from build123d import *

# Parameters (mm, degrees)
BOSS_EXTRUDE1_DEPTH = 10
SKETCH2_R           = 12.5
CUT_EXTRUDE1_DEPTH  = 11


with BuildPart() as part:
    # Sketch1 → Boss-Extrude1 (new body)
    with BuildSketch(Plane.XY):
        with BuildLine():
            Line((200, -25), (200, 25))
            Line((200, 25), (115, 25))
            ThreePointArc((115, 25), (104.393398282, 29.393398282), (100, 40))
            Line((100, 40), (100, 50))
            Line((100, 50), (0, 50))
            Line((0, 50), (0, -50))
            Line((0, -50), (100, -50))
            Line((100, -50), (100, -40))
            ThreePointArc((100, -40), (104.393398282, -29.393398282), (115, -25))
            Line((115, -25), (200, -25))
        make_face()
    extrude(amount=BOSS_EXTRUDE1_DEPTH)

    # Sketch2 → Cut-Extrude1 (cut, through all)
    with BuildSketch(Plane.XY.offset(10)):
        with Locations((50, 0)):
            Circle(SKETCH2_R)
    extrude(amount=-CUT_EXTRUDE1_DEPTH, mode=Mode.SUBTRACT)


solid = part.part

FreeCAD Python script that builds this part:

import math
import FreeCAD as App
import Part
import Sketcher
from FreeCAD import Vector
Q = App.Units.Quantity

doc = App.newDocument("Part")
body = doc.addObject("PartDesign::Body", "Body")

sketch1 = body.newObject("Sketcher::SketchObject", "Sketch")
sketch1.AttachmentSupport = (doc.getObject("XY_Plane"), [""])
sketch1.MapMode = "FlatFace"
sketch1.addGeometry([
    Part.LineSegment(Vector(200, -25, 0), Vector(200, 25, 0)),
    Part.LineSegment(Vector(200, 25, 0), Vector(115, 25, 0)),
    Part.ArcOfCircle(Part.Circle(Vector(115, 40, 0), Vector(0, 0, 1), 15), math.radians(180), math.radians(270)),
    Part.LineSegment(Vector(100, 40, 0), Vector(100, 50, 0)),
    Part.LineSegment(Vector(100, 50, 0), Vector(0, 50, 0)),
    Part.LineSegment(Vector(0, 50, 0), Vector(0, -50, 0)),
    Part.LineSegment(Vector(0, -50, 0), Vector(100, -50, 0)),
    Part.LineSegment(Vector(100, -50, 0), Vector(100, -40, 0)),
    Part.ArcOfCircle(Part.Circle(Vector(115, -40, 0), Vector(0, 0, 1), 15), math.radians(90), math.radians(180)),
    Part.LineSegment(Vector(115, -25, 0), Vector(200, -25, 0)),
], False)
sketch1.addConstraint([
    Sketcher.Constraint("Coincident", 0, 2, 1, 1),
    Sketcher.Constraint("Tangent", 1, 2, 2, 2),
    Sketcher.Constraint("Tangent", 2, 1, 3, 1),
    Sketcher.Constraint("Coincident", 3, 2, 4, 1),
    Sketcher.Constraint("Coincident", 4, 2, 5, 1),
    Sketcher.Constraint("Coincident", 5, 2, 6, 1),
    Sketcher.Constraint("Coincident", 6, 2, 7, 1),
    Sketcher.Constraint("Tangent", 7, 2, 8, 2),
    Sketcher.Constraint("Tangent", 8, 1, 9, 1),
    Sketcher.Constraint("Coincident", 9, 2, 0, 1),
    Sketcher.Constraint("Vertical", 0),
    Sketcher.Constraint("Horizontal", 1),
    Sketcher.Constraint("Vertical", 3),
    Sketcher.Constraint("Horizontal", 4),
    Sketcher.Constraint("Vertical", 5),
    Sketcher.Constraint("Horizontal", 6),
    Sketcher.Constraint("Vertical", 7),
    Sketcher.Constraint("Horizontal", 9),
    Sketcher.Constraint("Equal", 2, 8),
    Sketcher.Constraint("Symmetric", 4, 2, 5, 2, -1, 1),
    Sketcher.Constraint("Symmetric", 2, 3, 8, 3, -1),
    Sketcher.Constraint("Equal", 6, 5),
    Sketcher.Constraint("Radius", 2, Q("15 mm")),
    Sketcher.Constraint("DistanceX", 1, 2, 1, 1, Q("85 mm")),
    Sketcher.Constraint("DistanceX", 4, 2, 4, 1, Q("100 mm")),
    Sketcher.Constraint("DistanceY", 0, 1, 0, 2, Q("50 mm")),
])
pad1 = body.newObject("PartDesign::Pad", "Pad")
pad1.Profile = sketch1
pad1.Length = 10

sketch2 = body.newObject("Sketcher::SketchObject", "Sketch001")
sketch2.AttachmentSupport = (doc.getObject("XY_Plane"), [""])
sketch2.MapMode = "FlatFace"
sketch2.AttachmentOffset = App.Placement(Vector(0, 0, 10), App.Rotation())
sketch2.addGeometry(Part.Circle(Vector(50, 0, 0), Vector(0, 0, 1), 12.5), False)
sketch2.addConstraint([
    Sketcher.Constraint("PointOnObject", 0, 3, -1),
    Sketcher.Constraint("Diameter", 0, Q("25 mm")),
    Sketcher.Constraint("DistanceX", -1, 1, 0, 3, Q("50 mm")),
])
pocket1 = body.newObject("PartDesign::Pocket", "Pocket")
pocket1.Profile = sketch2
pocket1.Type = "ThroughAll"

doc.recompute()
